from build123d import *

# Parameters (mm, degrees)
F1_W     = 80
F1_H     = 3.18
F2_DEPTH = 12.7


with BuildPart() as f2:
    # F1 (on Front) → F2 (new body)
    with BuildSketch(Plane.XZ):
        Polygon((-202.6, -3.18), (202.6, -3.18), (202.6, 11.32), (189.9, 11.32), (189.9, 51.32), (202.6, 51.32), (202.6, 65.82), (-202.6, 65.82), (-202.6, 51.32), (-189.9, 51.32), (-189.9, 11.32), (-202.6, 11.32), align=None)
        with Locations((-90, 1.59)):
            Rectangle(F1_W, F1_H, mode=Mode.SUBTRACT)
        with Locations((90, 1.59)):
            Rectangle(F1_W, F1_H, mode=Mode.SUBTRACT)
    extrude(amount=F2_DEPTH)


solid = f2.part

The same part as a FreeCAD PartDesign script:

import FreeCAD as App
import Part
import Sketcher
Q = App.Units.Quantity


def add_polygon(sketch, points):
    """Adds a closed chain of lines whose ends are joined by coincident constraints."""
    first, n = sketch.GeometryCount, len(points)
    for a, b in zip(points, points[1:] + points[:1]):
        sketch.addGeometry(Part.LineSegment(App.Vector(*a, 0), App.Vector(*b, 0)), False)
    for i in range(n):
        sketch.addConstraint(Sketcher.Constraint("Coincident", first + i, 2, first + (i + 1) % n, 1))

doc = App.newDocument("Part")
body = doc.addObject("PartDesign::Body", "Body")

# Sketch on XZ plane
sketch1 = body.newObject("Sketcher::SketchObject", "Sketch")
sketch1.AttachmentSupport = (doc.getObject("XZ_Plane"), [""])
sketch1.MapMode = "FlatFace"
add_polygon(sketch1, [(-202.6, -3.2), (202.6, -3.2), (202.6, 11.3), (189.9, 11.3), (189.9, 51.3), (202.6, 51.3), (202.6, 65.8), (-202.6, 65.8), (-202.6, 51.3), (-189.9, 51.3), (-189.9, 11.3), (-202.6, 11.3)])  # lines 0-11
add_polygon(sketch1, [(-50, 0), (-130, 0), (-130, 3.2), (-50, 3.2)])  # lines 12-15
add_polygon(sketch1, [(130, 0), (50, 0), (50, 3.2), (130, 3.2)])  # lines 16-19
sketch1.addConstraint(Sketcher.Constraint("Horizontal", 0))
sketch1.addConstraint(Sketcher.Constraint("Vertical", 1))
sketch1.addConstraint(Sketcher.Constraint("Horizontal", 2))
sketch1.addConstraint(Sketcher.Constraint("Vertical", 3))
sketch1.addConstraint(Sketcher.Constraint("Horizontal", 4))
sketch1.addConstraint(Sketcher.Constraint("Vertical", 5))
sketch1.addConstraint(Sketcher.Constraint("Horizontal", 6))
sketch1.addConstraint(Sketcher.Constraint("Vertical", 7))
sketch1.addConstraint(Sketcher.Constraint("Horizontal", 8))
sketch1.addConstraint(Sketcher.Constraint("Vertical", 9))
sketch1.addConstraint(Sketcher.Constraint("Horizontal", 10))
sketch1.addConstraint(Sketcher.Constraint("Vertical", 11))
sketch1.addConstraint(Sketcher.Constraint("Horizontal", 12))
sketch1.addConstraint(Sketcher.Constraint("Vertical", 13))
sketch1.addConstraint(Sketcher.Constraint("Horizontal", 14))
sketch1.addConstraint(Sketcher.Constraint("Vertical", 15))
sketch1.addConstraint(Sketcher.Constraint("Horizontal", 16))
sketch1.addConstraint(Sketcher.Constraint("Vertical", 17))
sketch1.addConstraint(Sketcher.Constraint("Horizontal", 18))
sketch1.addConstraint(Sketcher.Constraint("Vertical", 19))
sketch1.addConstraint(Sketcher.Constraint("Symmetric", 15, 2, 16, 2, -1, 1))
sketch1.addConstraint(Sketcher.Constraint("Symmetric", 4, 2, 7, 2, -2))
sketch1.addConstraint(Sketcher.Constraint("Symmetric", 2, 2, 9, 2, -2))
sketch1.addConstraint(Sketcher.Constraint("Symmetric", 13, 2, 18, 2, -2))
sketch1.addConstraint(Sketcher.Constraint("PointOnObject", 12, 2, -1))
sketch1.addConstraint(Sketcher.Constraint("Vertical", 1, 2, 4, 2))
sketch1.addConstraint(Sketcher.Constraint("Vertical", 7, 2, 10, 2))
sketch1.addConstraint(Sketcher.Constraint("Equal", 1, 5))
sketch1.addConstraint(Sketcher.Constraint("DistanceX", 12, 2, 12, 1, Q("80 mm")))
sketch1.addConstraint(Sketcher.Constraint("DistanceY", 3, 1, 3, 2, Q("40 mm")))
sketch1.addConstraint(Sketcher.Constraint("DistanceX", 0, 1, 0, 2, Q("405.2 mm")))
sketch1.addConstraint(Sketcher.Constraint("DistanceX", 2, 2, 2, 1, Q("12.7 mm")))
sketch1.addConstraint(Sketcher.Constraint("DistanceY", 1, 1, 1, 2, Q("14.5 mm")))
sketch1.addConstraint(Sketcher.Constraint("DistanceX", 12, 2, -1, 1, Q("130 mm")))
sketch1.addConstraint(Sketcher.Constraint("DistanceY", 13, 1, 13, 2, Q("3.18 mm")))
sketch1.addConstraint(Sketcher.Constraint("DistanceY", 0, 2, -1, 1, Q("3.18 mm")))
pad1 = body.newObject("PartDesign::Pad", "Pad")
pad1.Profile = sketch1
pad1.Length = 12.7

doc.recompute()
